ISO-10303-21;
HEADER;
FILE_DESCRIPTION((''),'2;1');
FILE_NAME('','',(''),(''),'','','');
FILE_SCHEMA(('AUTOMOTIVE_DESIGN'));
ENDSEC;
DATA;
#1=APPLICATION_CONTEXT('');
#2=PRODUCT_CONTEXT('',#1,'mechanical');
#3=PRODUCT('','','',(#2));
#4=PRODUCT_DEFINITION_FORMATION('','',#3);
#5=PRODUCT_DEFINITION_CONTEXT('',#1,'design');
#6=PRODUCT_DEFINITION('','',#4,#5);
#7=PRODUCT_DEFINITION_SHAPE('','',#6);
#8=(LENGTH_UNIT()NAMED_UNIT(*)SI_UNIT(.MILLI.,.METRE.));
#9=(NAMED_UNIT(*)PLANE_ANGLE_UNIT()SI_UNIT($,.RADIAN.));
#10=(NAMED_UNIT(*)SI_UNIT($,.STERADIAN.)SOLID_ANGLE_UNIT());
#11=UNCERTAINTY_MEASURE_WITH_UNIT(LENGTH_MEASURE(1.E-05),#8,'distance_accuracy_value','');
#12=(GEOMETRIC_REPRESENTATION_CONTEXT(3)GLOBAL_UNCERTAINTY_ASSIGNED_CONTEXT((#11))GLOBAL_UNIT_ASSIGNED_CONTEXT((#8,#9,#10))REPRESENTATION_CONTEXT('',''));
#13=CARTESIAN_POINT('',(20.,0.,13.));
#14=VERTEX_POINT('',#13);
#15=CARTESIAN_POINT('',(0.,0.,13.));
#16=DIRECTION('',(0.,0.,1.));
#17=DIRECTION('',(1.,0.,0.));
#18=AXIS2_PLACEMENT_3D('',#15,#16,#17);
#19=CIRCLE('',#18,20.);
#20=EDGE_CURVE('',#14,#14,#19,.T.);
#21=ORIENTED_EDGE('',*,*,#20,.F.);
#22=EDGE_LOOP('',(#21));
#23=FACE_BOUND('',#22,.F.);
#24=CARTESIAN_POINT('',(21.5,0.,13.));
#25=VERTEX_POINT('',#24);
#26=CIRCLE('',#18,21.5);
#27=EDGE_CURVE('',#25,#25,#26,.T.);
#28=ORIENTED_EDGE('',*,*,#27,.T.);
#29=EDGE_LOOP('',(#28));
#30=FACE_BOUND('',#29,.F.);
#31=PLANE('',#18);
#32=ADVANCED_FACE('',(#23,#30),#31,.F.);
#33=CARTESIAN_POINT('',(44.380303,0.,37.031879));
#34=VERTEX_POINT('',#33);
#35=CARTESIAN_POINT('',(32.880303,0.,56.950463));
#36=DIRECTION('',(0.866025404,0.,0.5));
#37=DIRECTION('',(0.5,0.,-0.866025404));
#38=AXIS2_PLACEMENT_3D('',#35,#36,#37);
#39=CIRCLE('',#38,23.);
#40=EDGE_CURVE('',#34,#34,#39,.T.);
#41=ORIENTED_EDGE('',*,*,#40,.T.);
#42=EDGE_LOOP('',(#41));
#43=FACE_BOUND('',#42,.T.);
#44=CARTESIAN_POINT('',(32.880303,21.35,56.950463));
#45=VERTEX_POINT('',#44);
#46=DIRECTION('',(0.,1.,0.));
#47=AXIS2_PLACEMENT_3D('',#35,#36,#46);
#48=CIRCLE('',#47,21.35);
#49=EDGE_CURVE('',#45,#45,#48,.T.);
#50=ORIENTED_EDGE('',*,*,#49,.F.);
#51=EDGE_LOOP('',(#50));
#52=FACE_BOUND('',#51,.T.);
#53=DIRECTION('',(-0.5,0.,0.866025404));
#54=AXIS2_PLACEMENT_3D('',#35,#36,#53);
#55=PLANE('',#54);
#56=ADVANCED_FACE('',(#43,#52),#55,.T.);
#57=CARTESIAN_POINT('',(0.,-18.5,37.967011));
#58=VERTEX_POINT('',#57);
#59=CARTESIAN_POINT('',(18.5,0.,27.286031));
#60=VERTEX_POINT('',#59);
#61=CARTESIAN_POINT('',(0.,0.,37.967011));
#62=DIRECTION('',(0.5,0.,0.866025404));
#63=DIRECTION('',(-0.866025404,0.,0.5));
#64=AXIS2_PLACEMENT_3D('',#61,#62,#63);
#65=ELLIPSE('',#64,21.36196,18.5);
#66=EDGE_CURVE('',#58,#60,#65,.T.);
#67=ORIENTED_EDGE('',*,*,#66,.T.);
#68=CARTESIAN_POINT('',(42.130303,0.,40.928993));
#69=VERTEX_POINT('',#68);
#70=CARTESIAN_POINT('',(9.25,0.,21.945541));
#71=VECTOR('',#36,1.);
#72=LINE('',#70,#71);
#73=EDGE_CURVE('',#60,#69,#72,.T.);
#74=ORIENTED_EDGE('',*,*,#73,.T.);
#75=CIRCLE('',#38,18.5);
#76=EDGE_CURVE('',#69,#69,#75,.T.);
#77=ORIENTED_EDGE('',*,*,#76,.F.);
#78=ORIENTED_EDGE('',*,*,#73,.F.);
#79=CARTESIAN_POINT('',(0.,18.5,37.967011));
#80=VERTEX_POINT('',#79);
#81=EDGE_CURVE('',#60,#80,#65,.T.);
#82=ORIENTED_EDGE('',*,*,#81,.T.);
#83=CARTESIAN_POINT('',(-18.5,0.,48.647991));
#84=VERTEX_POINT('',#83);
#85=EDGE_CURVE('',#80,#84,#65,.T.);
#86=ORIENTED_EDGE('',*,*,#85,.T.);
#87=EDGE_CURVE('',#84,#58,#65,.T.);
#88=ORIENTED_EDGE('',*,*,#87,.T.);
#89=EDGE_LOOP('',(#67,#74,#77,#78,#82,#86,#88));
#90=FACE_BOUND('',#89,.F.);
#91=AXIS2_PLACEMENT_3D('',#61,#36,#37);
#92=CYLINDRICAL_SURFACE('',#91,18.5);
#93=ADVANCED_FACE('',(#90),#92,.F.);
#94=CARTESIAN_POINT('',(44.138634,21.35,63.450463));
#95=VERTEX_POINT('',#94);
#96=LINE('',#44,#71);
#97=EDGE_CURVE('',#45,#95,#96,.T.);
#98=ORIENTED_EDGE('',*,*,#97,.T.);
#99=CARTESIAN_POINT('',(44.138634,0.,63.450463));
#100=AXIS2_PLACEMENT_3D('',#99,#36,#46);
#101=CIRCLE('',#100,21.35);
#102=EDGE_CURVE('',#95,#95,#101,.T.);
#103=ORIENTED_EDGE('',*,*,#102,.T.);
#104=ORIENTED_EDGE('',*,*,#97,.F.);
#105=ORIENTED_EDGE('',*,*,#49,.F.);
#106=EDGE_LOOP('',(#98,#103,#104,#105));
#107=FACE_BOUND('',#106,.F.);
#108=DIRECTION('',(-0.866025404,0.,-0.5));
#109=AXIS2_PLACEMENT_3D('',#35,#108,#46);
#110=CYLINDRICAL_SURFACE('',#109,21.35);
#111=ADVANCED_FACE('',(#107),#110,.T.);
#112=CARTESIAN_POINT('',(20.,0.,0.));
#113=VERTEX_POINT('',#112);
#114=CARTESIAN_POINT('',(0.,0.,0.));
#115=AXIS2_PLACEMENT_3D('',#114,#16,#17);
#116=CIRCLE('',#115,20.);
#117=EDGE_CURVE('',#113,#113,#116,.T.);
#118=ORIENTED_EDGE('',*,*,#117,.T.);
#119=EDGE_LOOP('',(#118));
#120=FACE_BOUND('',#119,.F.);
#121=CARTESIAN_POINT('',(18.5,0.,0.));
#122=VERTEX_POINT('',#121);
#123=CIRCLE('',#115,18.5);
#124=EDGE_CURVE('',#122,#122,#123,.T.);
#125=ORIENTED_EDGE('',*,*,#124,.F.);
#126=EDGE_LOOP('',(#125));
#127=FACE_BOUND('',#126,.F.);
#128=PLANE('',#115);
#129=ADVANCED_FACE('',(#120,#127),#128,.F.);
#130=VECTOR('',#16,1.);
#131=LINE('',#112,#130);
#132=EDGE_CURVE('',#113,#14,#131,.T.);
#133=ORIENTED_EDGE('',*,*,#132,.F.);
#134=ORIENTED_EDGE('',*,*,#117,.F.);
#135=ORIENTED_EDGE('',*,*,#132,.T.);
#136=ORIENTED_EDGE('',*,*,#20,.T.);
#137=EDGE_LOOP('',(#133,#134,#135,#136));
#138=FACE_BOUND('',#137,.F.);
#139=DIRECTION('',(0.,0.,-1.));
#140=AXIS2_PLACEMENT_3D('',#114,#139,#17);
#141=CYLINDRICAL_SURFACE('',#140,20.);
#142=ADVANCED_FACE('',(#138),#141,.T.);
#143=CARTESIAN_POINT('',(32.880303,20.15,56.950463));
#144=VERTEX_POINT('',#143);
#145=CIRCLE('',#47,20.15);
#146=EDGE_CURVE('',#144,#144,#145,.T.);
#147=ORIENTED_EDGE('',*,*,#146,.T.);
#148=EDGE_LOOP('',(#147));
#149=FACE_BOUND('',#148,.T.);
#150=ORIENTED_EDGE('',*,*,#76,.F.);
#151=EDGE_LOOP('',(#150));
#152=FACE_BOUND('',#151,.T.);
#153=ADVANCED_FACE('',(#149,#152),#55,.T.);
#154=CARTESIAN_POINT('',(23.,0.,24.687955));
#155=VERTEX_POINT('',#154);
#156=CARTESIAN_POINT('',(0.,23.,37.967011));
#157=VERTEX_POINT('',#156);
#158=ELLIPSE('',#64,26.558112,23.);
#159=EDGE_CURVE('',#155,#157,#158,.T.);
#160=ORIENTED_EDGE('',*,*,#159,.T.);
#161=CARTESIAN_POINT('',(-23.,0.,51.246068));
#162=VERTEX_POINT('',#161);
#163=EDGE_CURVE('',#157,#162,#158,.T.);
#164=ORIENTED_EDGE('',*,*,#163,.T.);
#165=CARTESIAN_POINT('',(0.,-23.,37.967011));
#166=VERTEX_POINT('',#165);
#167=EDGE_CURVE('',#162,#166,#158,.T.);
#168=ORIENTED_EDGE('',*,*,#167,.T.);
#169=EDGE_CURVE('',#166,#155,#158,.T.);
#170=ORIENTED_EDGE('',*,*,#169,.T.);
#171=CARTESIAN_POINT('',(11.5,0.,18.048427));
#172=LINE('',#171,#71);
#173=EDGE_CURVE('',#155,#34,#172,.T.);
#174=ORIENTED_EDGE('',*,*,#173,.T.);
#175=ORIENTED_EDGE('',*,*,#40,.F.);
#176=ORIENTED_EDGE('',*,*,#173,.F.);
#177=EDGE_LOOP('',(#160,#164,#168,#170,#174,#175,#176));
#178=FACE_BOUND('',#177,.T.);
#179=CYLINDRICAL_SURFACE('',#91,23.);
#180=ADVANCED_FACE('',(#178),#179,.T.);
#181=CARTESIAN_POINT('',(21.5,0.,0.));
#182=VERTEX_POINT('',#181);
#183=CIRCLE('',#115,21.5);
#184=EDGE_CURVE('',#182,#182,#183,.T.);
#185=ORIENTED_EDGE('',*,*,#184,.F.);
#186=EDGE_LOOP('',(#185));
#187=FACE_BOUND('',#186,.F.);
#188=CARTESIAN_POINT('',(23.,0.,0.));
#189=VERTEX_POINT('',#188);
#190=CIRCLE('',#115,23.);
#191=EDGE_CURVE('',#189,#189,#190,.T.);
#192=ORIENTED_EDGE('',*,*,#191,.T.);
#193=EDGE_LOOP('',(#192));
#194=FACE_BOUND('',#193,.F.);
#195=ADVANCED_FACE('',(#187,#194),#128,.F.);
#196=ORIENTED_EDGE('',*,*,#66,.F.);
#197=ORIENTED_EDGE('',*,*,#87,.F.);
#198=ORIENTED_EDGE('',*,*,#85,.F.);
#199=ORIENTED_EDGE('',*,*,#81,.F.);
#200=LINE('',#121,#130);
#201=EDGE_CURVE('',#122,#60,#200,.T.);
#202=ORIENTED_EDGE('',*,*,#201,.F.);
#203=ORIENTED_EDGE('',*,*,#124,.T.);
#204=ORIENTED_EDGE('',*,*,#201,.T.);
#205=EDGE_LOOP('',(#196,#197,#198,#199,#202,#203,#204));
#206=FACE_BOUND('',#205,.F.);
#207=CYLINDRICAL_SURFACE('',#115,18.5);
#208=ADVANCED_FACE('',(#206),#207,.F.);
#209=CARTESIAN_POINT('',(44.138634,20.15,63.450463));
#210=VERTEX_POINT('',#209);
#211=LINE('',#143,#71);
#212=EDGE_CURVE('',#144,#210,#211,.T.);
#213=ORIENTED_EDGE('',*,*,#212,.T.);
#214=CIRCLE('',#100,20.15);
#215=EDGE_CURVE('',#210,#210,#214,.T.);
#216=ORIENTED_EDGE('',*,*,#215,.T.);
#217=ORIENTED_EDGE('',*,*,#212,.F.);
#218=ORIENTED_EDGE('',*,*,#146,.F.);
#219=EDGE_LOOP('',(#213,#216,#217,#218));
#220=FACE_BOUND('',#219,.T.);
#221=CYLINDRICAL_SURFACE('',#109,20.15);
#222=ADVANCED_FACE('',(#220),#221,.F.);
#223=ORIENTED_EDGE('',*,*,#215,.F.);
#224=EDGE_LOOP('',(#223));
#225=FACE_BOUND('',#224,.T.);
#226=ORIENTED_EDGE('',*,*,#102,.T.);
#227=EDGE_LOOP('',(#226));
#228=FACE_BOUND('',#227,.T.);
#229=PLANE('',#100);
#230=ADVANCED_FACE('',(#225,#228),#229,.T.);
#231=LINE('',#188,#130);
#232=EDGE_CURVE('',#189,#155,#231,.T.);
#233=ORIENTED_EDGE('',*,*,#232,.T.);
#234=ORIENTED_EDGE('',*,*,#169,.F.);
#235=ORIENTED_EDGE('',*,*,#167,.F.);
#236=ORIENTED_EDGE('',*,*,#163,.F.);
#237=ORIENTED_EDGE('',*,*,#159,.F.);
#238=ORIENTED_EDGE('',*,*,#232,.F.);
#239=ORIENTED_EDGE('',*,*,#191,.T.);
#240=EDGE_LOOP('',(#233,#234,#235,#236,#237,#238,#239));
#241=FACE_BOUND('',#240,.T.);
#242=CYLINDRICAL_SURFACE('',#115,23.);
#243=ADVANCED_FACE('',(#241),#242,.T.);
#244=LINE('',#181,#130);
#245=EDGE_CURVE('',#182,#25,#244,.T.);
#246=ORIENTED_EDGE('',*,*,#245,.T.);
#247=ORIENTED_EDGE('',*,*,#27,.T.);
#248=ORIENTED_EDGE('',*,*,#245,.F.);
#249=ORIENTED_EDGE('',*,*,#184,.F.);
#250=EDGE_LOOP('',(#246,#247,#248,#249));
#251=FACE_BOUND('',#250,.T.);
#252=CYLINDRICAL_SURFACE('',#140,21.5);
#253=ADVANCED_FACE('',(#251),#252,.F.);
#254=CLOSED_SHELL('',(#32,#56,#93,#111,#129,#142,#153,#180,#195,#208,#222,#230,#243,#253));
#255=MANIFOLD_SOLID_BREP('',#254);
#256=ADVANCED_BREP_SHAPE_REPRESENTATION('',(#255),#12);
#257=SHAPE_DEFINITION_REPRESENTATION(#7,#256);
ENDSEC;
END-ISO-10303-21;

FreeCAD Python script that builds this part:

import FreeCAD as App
import Part
import Sketcher
from FreeCAD import Vector
Q = App.Units.Quantity

doc = App.newDocument("Part")
body = doc.addObject("PartDesign::Body", "Body")

sketch1 = doc.addObject("Sketcher::SketchObject", "Sketch")
body.addObject(sketch1)
sketch1.AttachmentSupport = (doc.XY_Plane, [""])
sketch1.MapMode = "FlatFace"
sketch1.addGeometry(Part.Circle(Vector(0, 0, 0), Vector(0, 0, 1), 23), False)
sketch1.addGeometry(Part.Circle(Vector(0, 0, 0), Vector(0, 0, 1), 18), False)
sketch1.addConstraint(Sketcher.Constraint("Coincident", 0, 3, -1, 1))
sketch1.addConstraint(Sketcher.Constraint("Coincident", 1, 3, -1, 1))
sketch1.addConstraint(Sketcher.Constraint("Diameter", 0, 46.0))
sketch1.addConstraint(Sketcher.Constraint("Diameter", 1, 37.0))

sketch2 = doc.addObject("Sketcher::SketchObject", "Sketch001")
body.addObject(sketch2)
sketch2.AttachmentSupport = (doc.XZ_Plane, [""])
sketch2.MapMode = "FlatFace"
sketch2.addGeometry(Part.LineSegment(Vector(0, 0, 0), Vector(0, 38, 0)), False)
sketch2.addGeometry(Part.LineSegment(Vector(0, 38, 0), Vector(33, 57, 0)), False)
sketch2.addConstraint(Sketcher.Constraint("Coincident", 0, 2, 1, 1))
sketch2.addConstraint(Sketcher.Constraint("Vertical", 0))
sketch2.addConstraint(Sketcher.Constraint("Coincident", 0, 1, -1, 1))
sketch2.addConstraint(Sketcher.Constraint("Angle", 1, Q("30 deg")))
sketch2.addConstraint(Sketcher.Constraint("DistanceY", 0, 1, 0, 2, 37.967011))
sketch2.addConstraint(Sketcher.Constraint("DistanceY", 0, 2, 1, 2, 18.983452))
doc.recompute()

additivepipe = doc.addObject("PartDesign::AdditivePipe", "AdditivePipe")
body.addObject(additivepipe)
additivepipe.Profile = sketch1
additivepipe.Spine = (sketch2, ["Edge1", "Edge2"])
additivepipe.Transition = "Right corner"

sketch3 = doc.addObject("Sketcher::SketchObject", "Sketch002")
body.addObject(sketch3)
sketch3.Placement = App.Placement(Vector(49.320502, 0, 28.475205), App.Rotation(Vector(0, 1, 0), Vector(-0.5, 0, 0.866025404), Vector(0.866025404, 0, 0.5), "ZXY"))
sketch3.addGeometry(Part.Circle(Vector(0, 33, 0), Vector(0, 0, 1), 21), False)
sketch3.addGeometry(Part.Circle(Vector(0, 33, 0), Vector(0, 0, 1), 20), False)
sketch3.addConstraint(Sketcher.Constraint("Coincident", 1, 3, 0, 3))
sketch3.addConstraint(Sketcher.Constraint("PointOnObject", 0, 3, -2))
sketch3.addConstraint(Sketcher.Constraint("Diameter", 0, 42.7))
sketch3.addConstraint(Sketcher.Constraint("Diameter", 1, 40.3))
sketch3.addConstraint(Sketcher.Constraint("DistanceY", -1, 1, 0, 3, 32.880396))
pad1 = doc.addObject("PartDesign::Pad", "Pad")
body.addObject(pad1)
pad1.Profile = sketch3
pad1.Length = 13

sketch4 = doc.addObject("Sketcher::SketchObject", "Sketch003")
body.addObject(sketch4)
sketch4.AttachmentSupport = (doc.XY_Plane, [""])
sketch4.MapMode = "FlatFace"
sketch4.addGeometry(Part.Circle(Vector(0, 0, 0), Vector(0, 0, 1), 22), False)
sketch4.addGeometry(Part.Circle(Vector(0, 0, 0), Vector(0, 0, 1), 20), False)
sketch4.addConstraint(Sketcher.Constraint("Coincident", 0, 3, -1, 1))
sketch4.addConstraint(Sketcher.Constraint("Coincident", 1, 3, -1, 1))
sketch4.addConstraint(Sketcher.Constraint("Diameter", 0, 43.0))
sketch4.addConstraint(Sketcher.Constraint("Diameter", 1, 40.0))
pocket1 = doc.addObject("PartDesign::Pocket", "Pocket")
body.addObject(pocket1)
pocket1.Profile = sketch4
pocket1.Length = 13
pocket1.Reversed = True

doc.recompute()
